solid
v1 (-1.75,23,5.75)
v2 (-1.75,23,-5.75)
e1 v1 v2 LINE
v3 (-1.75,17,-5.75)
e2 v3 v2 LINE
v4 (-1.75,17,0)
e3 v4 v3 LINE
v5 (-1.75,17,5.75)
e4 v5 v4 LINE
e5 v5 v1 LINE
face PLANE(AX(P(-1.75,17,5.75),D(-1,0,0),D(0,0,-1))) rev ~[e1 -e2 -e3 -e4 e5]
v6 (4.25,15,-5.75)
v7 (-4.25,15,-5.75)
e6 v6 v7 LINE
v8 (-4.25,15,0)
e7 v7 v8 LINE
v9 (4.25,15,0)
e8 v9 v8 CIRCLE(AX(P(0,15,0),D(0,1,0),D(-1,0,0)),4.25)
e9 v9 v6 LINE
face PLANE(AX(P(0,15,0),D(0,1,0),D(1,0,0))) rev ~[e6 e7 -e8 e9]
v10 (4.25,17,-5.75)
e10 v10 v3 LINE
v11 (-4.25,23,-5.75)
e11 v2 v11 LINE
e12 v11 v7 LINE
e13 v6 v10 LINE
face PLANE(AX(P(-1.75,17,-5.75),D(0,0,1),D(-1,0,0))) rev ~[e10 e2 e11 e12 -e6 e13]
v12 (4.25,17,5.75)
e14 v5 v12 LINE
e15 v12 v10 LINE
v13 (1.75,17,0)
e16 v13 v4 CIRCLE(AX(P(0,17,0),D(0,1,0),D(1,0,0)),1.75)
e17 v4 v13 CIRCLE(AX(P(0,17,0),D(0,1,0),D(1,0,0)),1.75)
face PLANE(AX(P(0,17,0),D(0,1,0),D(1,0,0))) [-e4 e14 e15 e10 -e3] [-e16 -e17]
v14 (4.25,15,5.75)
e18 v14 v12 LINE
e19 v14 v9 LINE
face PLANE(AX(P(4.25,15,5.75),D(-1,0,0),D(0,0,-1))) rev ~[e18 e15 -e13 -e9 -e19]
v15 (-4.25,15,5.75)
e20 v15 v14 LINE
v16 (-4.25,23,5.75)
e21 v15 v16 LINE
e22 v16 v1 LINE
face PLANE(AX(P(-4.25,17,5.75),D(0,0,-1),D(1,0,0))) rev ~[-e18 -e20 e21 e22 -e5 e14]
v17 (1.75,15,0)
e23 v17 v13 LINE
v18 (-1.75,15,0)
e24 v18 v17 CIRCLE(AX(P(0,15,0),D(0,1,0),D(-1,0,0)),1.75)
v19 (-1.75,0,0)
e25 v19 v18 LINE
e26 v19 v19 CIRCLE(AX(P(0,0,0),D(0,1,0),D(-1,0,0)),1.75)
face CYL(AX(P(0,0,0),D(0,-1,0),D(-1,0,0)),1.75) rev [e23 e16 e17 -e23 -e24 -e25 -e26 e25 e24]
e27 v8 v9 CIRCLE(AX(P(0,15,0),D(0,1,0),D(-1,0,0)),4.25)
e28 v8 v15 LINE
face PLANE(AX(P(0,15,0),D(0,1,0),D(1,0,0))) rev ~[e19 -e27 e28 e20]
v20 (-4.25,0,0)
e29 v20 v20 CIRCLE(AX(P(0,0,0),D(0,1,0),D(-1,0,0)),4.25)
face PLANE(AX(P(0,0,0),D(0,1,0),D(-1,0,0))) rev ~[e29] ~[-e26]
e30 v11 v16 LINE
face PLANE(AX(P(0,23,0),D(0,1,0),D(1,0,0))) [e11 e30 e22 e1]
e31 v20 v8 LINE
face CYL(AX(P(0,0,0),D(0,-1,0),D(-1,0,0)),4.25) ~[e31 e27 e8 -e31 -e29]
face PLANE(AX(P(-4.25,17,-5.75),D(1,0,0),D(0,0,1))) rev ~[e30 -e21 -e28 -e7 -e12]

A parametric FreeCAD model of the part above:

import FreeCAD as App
import Part
import Sketcher
from FreeCAD import Vector

doc = App.newDocument("Part")
body = doc.addObject("PartDesign::Body", "Body")

sketch1 = body.newObject("Sketcher::SketchObject", "Sketch")
sketch1.AttachmentSupport = (doc.getObject("XZ_Plane"), [""])
sketch1.MapMode = "FlatFace"
sketch1.addGeometry([
    Part.Circle(Vector(0, 0, 0), Vector(0, 0, 1), 4.2),
    Part.Circle(Vector(0, 0, 0), Vector(0, 0, 1), 1.8),
], False)
sketch1.addConstraint([
    Sketcher.Constraint("Coincident", 0, 3, -1, 1),
    Sketcher.Constraint("Coincident", 1, 3, -1, 1),
    Sketcher.Constraint("Diameter", 0, 8.5),
    Sketcher.Constraint("Diameter", 1, 3.5),
])
pad1 = body.newObject("PartDesign::Pad", "Pad")
pad1.Profile = sketch1
pad1.Length = 15
pad1.Reversed = True

sketch2 = body.newObject("Sketcher::SketchObject", "Sketch001")
sketch2.AttachmentSupport = (doc.getObject("XZ_Plane"), [""])
sketch2.MapMode = "FlatFace"
sketch2.AttachmentOffset = App.Placement(Vector(0, 0, -15), App.Rotation())
sketch2.addGeometry([
    Part.LineSegment(Vector(-4.2, -5.8, 0), Vector(-4.2, 5.8, 0)),
    Part.LineSegment(Vector(-4.2, 5.8, 0), Vector(4.2, 5.8, 0)),
    Part.LineSegment(Vector(4.2, 5.8, 0), Vector(4.2, -5.8, 0)),
    Part.LineSegment(Vector(4.2, -5.8, 0), Vector(-4.2, -5.8, 0)),
    Part.Circle(Vector(0, 0, 0), Vector(0, 0, 1), 1.8),
], False)
sketch2.addConstraint([
    Sketcher.Constraint("Coincident", 0, 2, 1, 1),
    Sketcher.Constraint("Coincident", 1, 2, 2, 1),
    Sketcher.Constraint("Coincident", 2, 2, 3, 1),
    Sketcher.Constraint("Coincident", 3, 2, 0, 1),
    Sketcher.Constraint("Vertical", 0),
    Sketcher.Constraint("Horizontal", 1),
    Sketcher.Constraint("Vertical", 2),
    Sketcher.Constraint("Horizontal", 3),
    Sketcher.Constraint("Coincident", 4, 3, -1, 1),
    Sketcher.Constraint("Symmetric", 0, 2, 2, 2, -1, 1),
    Sketcher.Constraint("DistanceX", 1, 1, 1, 2, 8.5),
    Sketcher.Constraint("DistanceY", 0, 1, 0, 2, 11.5),
    Sketcher.Constraint("Diameter", 4, 3.5),
])
pad2 = body.newObject("PartDesign::Pad", "Pad001")
pad2.Profile = sketch2
pad2.Length = 2
pad2.Reversed = True

sketch3 = body.newObject("Sketcher::SketchObject", "Sketch002")
sketch3.AttachmentSupport = (doc.getObject("XZ_Plane"), [""])
sketch3.MapMode = "FlatFace"
sketch3.AttachmentOffset = App.Placement(Vector(0, 0, -17), App.Rotation())
sketch3.addGeometry([
    Part.LineSegment(Vector(-4.2, -5.8, 0), Vector(-4.2, 5.8, 0)),
    Part.LineSegment(Vector(-4.2, 5.8, 0), Vector(-1.8, 5.8, 0)),
    Part.LineSegment(Vector(-1.8, 5.8, 0), Vector(-1.8, -5.8, 0)),
    Part.LineSegment(Vector(-1.8, -5.8, 0), Vector(-4.2, -5.8, 0)),
], False)
sketch3.addConstraint([
    Sketcher.Constraint("Coincident", 0, 2, 1, 1),
    Sketcher.Constraint("Coincident", 1, 2, 2, 1),
    Sketcher.Constraint("Coincident", 2, 2, 3, 1),
    Sketcher.Constraint("Coincident", 3, 2, 0, 1),
    Sketcher.Constraint("Vertical", 0),
    Sketcher.Constraint("Horizontal", 1),
    Sketcher.Constraint("Vertical", 2),
    Sketcher.Constraint("Horizontal", 3),
    Sketcher.Constraint("DistanceX", 1, 1, 1, 2, 2.5),
    Sketcher.Constraint("DistanceY", 0, 1, 0, 2, 11.5),
    Sketcher.Constraint("DistanceX", 0, 2, -1, 1, 4.25),
    Sketcher.Constraint("DistanceY", -1, 1, 0, 2, 5.75),
])
pad3 = body.newObject("PartDesign::Pad", "Pad002")
pad3.Profile = sketch3
pad3.Length = 6
pad3.Reversed = True

doc.recompute()
